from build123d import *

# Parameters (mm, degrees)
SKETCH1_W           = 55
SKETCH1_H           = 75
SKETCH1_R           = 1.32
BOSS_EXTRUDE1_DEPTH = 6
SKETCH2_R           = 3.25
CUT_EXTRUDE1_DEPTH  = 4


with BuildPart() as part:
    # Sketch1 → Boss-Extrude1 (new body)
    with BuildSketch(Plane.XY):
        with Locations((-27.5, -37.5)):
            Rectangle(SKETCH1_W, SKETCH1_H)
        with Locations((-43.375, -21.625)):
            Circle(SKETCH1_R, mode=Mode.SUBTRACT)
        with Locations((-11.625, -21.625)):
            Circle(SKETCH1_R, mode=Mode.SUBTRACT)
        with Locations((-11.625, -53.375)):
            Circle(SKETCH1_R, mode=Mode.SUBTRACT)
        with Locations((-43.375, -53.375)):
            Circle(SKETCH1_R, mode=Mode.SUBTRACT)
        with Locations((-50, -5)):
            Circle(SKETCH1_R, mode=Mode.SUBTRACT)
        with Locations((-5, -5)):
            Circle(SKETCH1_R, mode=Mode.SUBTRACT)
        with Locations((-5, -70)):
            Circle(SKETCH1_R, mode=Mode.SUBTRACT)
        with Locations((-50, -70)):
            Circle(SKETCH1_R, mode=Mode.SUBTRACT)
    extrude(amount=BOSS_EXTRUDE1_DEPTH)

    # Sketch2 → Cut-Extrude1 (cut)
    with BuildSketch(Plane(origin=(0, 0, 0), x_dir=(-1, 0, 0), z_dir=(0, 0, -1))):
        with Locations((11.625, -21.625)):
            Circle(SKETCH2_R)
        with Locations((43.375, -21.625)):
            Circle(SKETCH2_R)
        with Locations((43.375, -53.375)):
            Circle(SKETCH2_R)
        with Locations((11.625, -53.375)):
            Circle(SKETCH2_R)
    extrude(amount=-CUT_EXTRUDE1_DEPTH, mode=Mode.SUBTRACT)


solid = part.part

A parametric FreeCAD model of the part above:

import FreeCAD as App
import Part
import Sketcher
from FreeCAD import Vector
Q = App.Units.Quantity

doc = App.newDocument("Part")
body = doc.addObject("PartDesign::Body", "Body")

# Sketch on XY plane
sketch1 = body.newObject("Sketcher::SketchObject", "Sketch")
sketch1.AttachmentSupport = (doc.getObject("XY_Plane"), [""])
sketch1.MapMode = "FlatFace"
sketch1.addGeometry([
    Part.LineSegment(Vector(-55, 0, 0), Vector(-55, -75, 0)),  # 0
    Part.LineSegment(Vector(-55, -75, 0), Vector(0, -75, 0)),  # 1
    Part.LineSegment(Vector(0, -75, 0), Vector(0, 0, 0)),  # 2
    Part.LineSegment(Vector(0, 0, 0), Vector(-55, 0, 0)),  # 3
    Part.Circle(Vector(-50, -70, 0), Vector(0, 0, 1), 1.3),  # 4
    Part.Circle(Vector(-43.4, -53.4, 0), Vector(0, 0, 1), 1.3),  # 5
    Part.Circle(Vector(-5, -70, 0), Vector(0, 0, 1), 1.3),  # 6
    Part.Circle(Vector(-11.6, -53.4, 0), Vector(0, 0, 1), 1.3),  # 7
    Part.Circle(Vector(-43.4, -21.6, 0), Vector(0, 0, 1), 1.3),  # 8
    Part.Circle(Vector(-50, -5, 0), Vector(0, 0, 1), 1.3),  # 9
    Part.Circle(Vector(-11.6, -21.6, 0), Vector(0, 0, 1), 1.3),  # 10
    Part.Circle(Vector(-5, -5, 0), Vector(0, 0, 1), 1.3),  # 11
], False)
sketch1.addConstraint([
    Sketcher.Constraint("Coincident", 0, 2, 1, 1),
    Sketcher.Constraint("Coincident", 1, 2, 2, 1),
    Sketcher.Constraint("Coincident", 2, 2, 3, 1),
    Sketcher.Constraint("Coincident", 3, 2, 0, 1),
    Sketcher.Constraint("Vertical", 0),
    Sketcher.Constraint("Horizontal", 1),
    Sketcher.Constraint("Vertical", 2),
    Sketcher.Constraint("Horizontal", 3),
    Sketcher.Constraint("Coincident", 2, 2, -1, 1),
    Sketcher.Constraint("Equal", 4, 5),
    Sketcher.Constraint("Equal", 5, 6),
    Sketcher.Constraint("Equal", 6, 7),
    Sketcher.Constraint("Equal", 7, 8),
    Sketcher.Constraint("Equal", 8, 9),
    Sketcher.Constraint("Equal", 9, 10),
    Sketcher.Constraint("Equal", 10, 11),
    Sketcher.Constraint("Horizontal", 4, 3, 6, 3),
    Sketcher.Constraint("Horizontal", 5, 3, 7, 3),
    Sketcher.Constraint("Horizontal", 8, 3, 10, 3),
    Sketcher.Constraint("Horizontal", 9, 3, 11, 3),
    Sketcher.Constraint("Vertical", 5, 3, 8, 3),
    Sketcher.Constraint("Vertical", 4, 3, 9, 3),
    Sketcher.Constraint("Vertical", 7, 3, 10, 3),
    Sketcher.Constraint("Vertical", 6, 3, 11, 3),
    Sketcher.Constraint("Diameter", 4, Q("2.64 mm")),
    Sketcher.Constraint("DistanceX", 1, 1, 1, 2, Q("55 mm")),
    Sketcher.Constraint("DistanceY", 0, 2, 0, 1, Q("75 mm")),
    Sketcher.Constraint("DistanceX", 4, 3, -1, 1, Q("50 mm")),
    Sketcher.Constraint("DistanceY", 4, 3, -1, 1, Q("70 mm")),
    Sketcher.Constraint("DistanceX", 6, 3, -1, 1, Q("5 mm")),
    Sketcher.Constraint("DistanceY", 9, 3, -1, 1, Q("5 mm")),
    Sketcher.Constraint("DistanceX", 5, 3, 7, 3, Q("31.75 mm")),
    Sketcher.Constraint("DistanceY", 5, 3, 8, 3, Q("31.75 mm")),
    Sketcher.Constraint("DistanceX", 5, 3, -1, 1, Q("43.375 mm")),
    Sketcher.Constraint("DistanceY", 5, 3, -1, 1, Q("53.375 mm")),
])
pad1 = body.newObject("PartDesign::Pad", "Pad")
pad1.Profile = sketch1
pad1.Length = 6

# Sketch on XY plane
sketch2 = body.newObject("Sketcher::SketchObject", "Sketch001")
sketch2.AttachmentSupport = (doc.getObject("XY_Plane"), [""])
sketch2.MapMode = "FlatFace"
sketch2.addGeometry([
    Part.Circle(Vector(-11.6, -21.6, 0), Vector(0, 0, 1), 3.2),
    Part.Circle(Vector(-43.4, -21.6, 0), Vector(0, 0, 1), 3.2),
    Part.Circle(Vector(-43.4, -53.4, 0), Vector(0, 0, 1), 3.2),
    Part.Circle(Vector(-11.6, -53.4, 0), Vector(0, 0, 1), 3.2),
], False)
sketch2.addConstraint([
    Sketcher.Constraint("Equal", 0, 1),
    Sketcher.Constraint("Equal", 1, 2),
    Sketcher.Constraint("Equal", 2, 3),
    Sketcher.Constraint("Horizontal", 0, 3, 1, 3),
    Sketcher.Constraint("Horizontal", 2, 3, 3, 3),
    Sketcher.Constraint("Vertical", 1, 3, 2, 3),
    Sketcher.Constraint("Vertical", 0, 3, 3, 3),
    Sketcher.Constraint("Diameter", 0, Q("6.5 mm")),
    Sketcher.Constraint("DistanceX", 1, 3, 0, 3, Q("31.75 mm")),
    Sketcher.Constraint("DistanceY", 2, 3, 1, 3, Q("31.75 mm")),
    Sketcher.Constraint("DistanceX", 0, 3, -1, 1, Q("11.625 mm")),
    Sketcher.Constraint("DistanceY", 0, 3, -1, 1, Q("21.625 mm")),
])
pocket1 = body.newObject("PartDesign::Pocket", "Pocket")
pocket1.Profile = sketch2
pocket1.Length = 4
pocket1.Reversed = True

doc.recompute()
